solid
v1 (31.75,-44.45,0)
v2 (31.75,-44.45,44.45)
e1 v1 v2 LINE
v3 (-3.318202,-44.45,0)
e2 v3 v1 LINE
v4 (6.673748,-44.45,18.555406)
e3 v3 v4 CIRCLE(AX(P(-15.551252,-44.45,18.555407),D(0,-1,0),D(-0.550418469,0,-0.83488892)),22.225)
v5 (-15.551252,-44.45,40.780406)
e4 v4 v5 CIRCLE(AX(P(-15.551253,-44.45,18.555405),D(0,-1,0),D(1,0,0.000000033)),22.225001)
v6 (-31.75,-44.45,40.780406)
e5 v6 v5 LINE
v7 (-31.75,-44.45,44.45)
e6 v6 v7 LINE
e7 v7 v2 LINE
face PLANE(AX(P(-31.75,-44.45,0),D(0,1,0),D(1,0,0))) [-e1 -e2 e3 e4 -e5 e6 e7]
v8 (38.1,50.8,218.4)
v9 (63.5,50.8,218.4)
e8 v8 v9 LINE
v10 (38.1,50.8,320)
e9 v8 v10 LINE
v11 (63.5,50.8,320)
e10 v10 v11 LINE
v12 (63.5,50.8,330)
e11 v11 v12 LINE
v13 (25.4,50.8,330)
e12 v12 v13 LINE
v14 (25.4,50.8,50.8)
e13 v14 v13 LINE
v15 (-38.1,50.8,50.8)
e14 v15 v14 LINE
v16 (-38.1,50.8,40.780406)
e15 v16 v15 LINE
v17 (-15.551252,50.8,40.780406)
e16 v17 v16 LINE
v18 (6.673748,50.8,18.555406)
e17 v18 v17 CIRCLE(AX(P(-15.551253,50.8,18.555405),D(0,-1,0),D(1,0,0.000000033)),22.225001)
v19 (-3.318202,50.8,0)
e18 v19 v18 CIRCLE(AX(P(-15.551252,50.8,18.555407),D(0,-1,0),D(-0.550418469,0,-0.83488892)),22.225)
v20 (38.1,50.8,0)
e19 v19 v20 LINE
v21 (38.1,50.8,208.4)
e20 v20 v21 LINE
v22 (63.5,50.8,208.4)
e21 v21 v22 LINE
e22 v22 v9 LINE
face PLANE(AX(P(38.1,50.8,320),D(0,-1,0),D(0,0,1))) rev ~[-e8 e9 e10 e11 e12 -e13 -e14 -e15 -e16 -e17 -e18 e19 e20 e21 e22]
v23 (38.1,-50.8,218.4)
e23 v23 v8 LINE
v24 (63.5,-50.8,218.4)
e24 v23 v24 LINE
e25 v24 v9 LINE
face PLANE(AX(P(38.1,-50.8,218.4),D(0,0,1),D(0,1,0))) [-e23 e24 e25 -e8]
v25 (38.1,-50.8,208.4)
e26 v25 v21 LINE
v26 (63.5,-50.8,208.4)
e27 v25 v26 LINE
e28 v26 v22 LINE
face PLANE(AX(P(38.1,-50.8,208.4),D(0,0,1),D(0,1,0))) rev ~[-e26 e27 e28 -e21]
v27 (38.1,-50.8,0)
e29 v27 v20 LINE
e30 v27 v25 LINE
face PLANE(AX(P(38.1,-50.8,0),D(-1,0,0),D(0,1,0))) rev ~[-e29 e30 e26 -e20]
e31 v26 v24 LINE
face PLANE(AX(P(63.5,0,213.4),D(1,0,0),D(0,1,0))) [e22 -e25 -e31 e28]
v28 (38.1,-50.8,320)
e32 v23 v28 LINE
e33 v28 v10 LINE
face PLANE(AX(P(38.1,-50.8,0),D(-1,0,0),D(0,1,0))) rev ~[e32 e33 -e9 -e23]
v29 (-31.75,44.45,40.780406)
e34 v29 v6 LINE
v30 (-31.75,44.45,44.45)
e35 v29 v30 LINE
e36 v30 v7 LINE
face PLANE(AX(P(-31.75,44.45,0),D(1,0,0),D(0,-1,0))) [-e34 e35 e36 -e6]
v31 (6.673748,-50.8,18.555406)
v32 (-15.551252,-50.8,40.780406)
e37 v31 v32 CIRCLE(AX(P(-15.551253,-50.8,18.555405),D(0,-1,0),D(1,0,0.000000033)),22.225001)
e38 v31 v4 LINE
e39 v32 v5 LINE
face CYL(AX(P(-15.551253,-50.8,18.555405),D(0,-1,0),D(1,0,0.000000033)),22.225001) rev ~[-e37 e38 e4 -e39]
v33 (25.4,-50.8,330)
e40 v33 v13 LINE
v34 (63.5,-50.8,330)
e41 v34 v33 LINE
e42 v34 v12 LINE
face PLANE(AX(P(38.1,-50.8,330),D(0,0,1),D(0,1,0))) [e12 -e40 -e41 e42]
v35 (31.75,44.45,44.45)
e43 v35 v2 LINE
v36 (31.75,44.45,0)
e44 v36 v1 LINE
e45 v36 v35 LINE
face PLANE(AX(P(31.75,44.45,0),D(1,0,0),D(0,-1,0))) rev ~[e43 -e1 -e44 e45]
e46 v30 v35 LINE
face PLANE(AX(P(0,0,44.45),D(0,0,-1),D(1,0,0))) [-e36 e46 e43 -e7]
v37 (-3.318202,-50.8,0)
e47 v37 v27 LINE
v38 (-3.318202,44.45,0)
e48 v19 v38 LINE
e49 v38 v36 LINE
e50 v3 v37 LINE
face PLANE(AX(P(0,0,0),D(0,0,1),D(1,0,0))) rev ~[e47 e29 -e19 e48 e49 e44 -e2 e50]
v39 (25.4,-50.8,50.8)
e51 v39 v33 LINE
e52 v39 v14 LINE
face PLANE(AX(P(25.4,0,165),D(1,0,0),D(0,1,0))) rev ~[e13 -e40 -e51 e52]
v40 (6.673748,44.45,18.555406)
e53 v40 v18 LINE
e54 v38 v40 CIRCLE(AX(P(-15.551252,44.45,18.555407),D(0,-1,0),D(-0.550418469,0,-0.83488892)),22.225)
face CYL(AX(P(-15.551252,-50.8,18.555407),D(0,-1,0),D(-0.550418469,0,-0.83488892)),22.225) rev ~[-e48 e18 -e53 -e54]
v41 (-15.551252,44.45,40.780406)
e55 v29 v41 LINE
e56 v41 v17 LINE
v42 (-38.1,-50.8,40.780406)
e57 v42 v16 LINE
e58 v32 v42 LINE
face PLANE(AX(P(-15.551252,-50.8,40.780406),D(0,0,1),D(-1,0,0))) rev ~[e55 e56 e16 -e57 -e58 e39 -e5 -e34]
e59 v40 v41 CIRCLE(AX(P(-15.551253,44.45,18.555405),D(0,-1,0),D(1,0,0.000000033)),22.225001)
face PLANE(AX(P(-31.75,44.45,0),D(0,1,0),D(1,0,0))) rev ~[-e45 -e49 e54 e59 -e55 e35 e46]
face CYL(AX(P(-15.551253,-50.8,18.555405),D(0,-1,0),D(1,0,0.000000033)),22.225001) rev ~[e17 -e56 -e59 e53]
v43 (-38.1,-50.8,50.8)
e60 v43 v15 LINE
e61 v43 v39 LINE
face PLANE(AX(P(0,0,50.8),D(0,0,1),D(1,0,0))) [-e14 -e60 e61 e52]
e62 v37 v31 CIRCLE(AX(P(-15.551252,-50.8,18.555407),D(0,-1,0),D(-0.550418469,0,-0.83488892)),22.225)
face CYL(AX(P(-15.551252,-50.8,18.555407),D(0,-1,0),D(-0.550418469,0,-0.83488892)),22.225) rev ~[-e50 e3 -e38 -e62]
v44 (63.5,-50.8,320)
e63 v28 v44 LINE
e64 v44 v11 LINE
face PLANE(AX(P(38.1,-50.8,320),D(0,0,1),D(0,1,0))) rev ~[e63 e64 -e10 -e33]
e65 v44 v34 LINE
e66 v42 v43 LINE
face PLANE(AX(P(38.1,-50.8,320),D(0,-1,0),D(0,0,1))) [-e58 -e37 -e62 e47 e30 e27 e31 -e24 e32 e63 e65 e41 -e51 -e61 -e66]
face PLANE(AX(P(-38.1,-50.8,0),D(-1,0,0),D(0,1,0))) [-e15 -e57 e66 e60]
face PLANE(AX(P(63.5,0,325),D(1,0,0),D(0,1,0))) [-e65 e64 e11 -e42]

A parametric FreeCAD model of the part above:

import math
import FreeCAD as App
import Part
import Sketcher
Q = App.Units.Quantity


def add_polygon(sketch, points):
    """Adds a closed chain of lines whose ends are joined by coincident constraints."""
    first, n = sketch.GeometryCount, len(points)
    for a, b in zip(points, points[1:] + points[:1]):
        sketch.addGeometry(Part.LineSegment(App.Vector(*a, 0), App.Vector(*b, 0)), False)
    for i in range(n):
        sketch.addConstraint(Sketcher.Constraint("Coincident", first + i, 2, first + (i + 1) % n, 1))

doc = App.newDocument("Part")
params = doc.addObject("Spreadsheet::Sheet", "Params")
for row, (alias, value) in enumerate([
    ("sketch1_width", "3 in"),
    ("sketch1_height", "4 in"),
    ("pad1_length", "2 in"),
    ("sketch2_width", "4 in"),
    ("pad2_length", "0.5 in"),
    ("sketch3_width", "4 in"),
    ("pad3_length", "1 in"),
    ("sketch4_width", "2.5 in"),
    ("sketch4_height", "3.5 in"),
    ("pocket1_length", "1.75 in"),
    ("sketch5_radius", "0.875 in"),
    ("pocket2_length", "4.52 in"),
], start=1):
    params.set(f"A{row}", alias)
    params.set(f"B{row}", "=" + value)
    params.setAlias(f"B{row}", alias)

body = doc.addObject("PartDesign::Body", "Body")

sketch1 = doc.addObject("Sketcher::SketchObject", "Sketch")
body.addObject(sketch1)
sketch1.AttachmentSupport = (doc.XY_Plane, [""])
sketch1.MapMode = "FlatFace"
add_polygon(sketch1, [(-38, 51), (-38, -51), (38, -51), (38, 51)])
sketch1.addConstraint(Sketcher.Constraint("Vertical", 0))
sketch1.addConstraint(Sketcher.Constraint("Horizontal", 1))
sketch1.addConstraint(Sketcher.Constraint("Vertical", 2))
sketch1.addConstraint(Sketcher.Constraint("Horizontal", 3))
sketch1.addConstraint(Sketcher.Constraint("Symmetric", 0, 2, 2, 2, -1, 1))
sketch1.addConstraint(Sketcher.Constraint("DistanceX", 1, 1, 1, 2, Q("3 in")))
sketch1.addConstraint(Sketcher.Constraint("DistanceY", 0, 2, 0, 1, Q("4 in")))
sketch1.setExpression("Constraints[9]", "Params.sketch1_width")
sketch1.setExpression("Constraints[10]", "Params.sketch1_height")
pad1 = doc.addObject("PartDesign::Pad", "Pad")
body.addObject(pad1)
pad1.Profile = sketch1
pad1.setExpression("Length", "Params.pad1_length")

sketch2 = doc.addObject("Sketcher::SketchObject", "Sketch001")
body.addObject(sketch2)
sketch2.AttachmentSupport = (doc.YZ_Plane, [""])
sketch2.MapMode = "FlatFace"
sketch2.AttachmentOffset = App.Placement(App.Vector(0, 0, 1.5 * 25.4), App.Rotation())
add_polygon(sketch2, [(-51, 330), (-51, 0), (51, 0), (51, 330)])
sketch2.addConstraint(Sketcher.Constraint("Vertical", 0))
sketch2.addConstraint(Sketcher.Constraint("Horizontal", 1))
sketch2.addConstraint(Sketcher.Constraint("Vertical", 2))
sketch2.addConstraint(Sketcher.Constraint("Horizontal", 3))
sketch2.addConstraint(Sketcher.Constraint("Symmetric", 0, 2, 1, 2, -1, 1))
sketch2.addConstraint(Sketcher.Constraint("DistanceX", 1, 1, 1, 2, Q("4 in")))
sketch2.addConstraint(Sketcher.Constraint("DistanceY", 0, 2, 0, 1, 330.0))
sketch2.setExpression("Constraints[9]", "Params.sketch2_width")
pad2 = doc.addObject("PartDesign::Pad", "Pad001")
body.addObject(pad2)
pad2.Profile = sketch2
pad2.setExpression("Length", "Params.pad2_length")
pad2.Reversed = True

sketch3 = doc.addObject("Sketcher::SketchObject", "Sketch002")
body.addObject(sketch3)
sketch3.AttachmentSupport = (doc.YZ_Plane, [""])
sketch3.MapMode = "FlatFace"
sketch3.AttachmentOffset = App.Placement(App.Vector(0, 0, 1.5 * 25.4), App.Rotation())
add_polygon(sketch3, [(-51, 330), (-51, 320), (51, 320), (51, 330)])
add_polygon(sketch3, [(-51, 218), (-51, 208), (51, 208), (51, 218)])
sketch3.addConstraint(Sketcher.Constraint("Vertical", 0))
sketch3.addConstraint(Sketcher.Constraint("Horizontal", 1))
sketch3.addConstraint(Sketcher.Constraint("Vertical", 2))
sketch3.addConstraint(Sketcher.Constraint("Horizontal", 3))
sketch3.addConstraint(Sketcher.Constraint("Vertical", 4))
sketch3.addConstraint(Sketcher.Constraint("Horizontal", 5))
sketch3.addConstraint(Sketcher.Constraint("Vertical", 6))
sketch3.addConstraint(Sketcher.Constraint("Horizontal", 7))
sketch3.addConstraint(Sketcher.Constraint("Vertical", 3, 2, 4, 2))
sketch3.addConstraint(Sketcher.Constraint("Vertical", 2, 2, 5, 2))
sketch3.addConstraint(Sketcher.Constraint("Equal", 2, 4))
sketch3.addConstraint(Sketcher.Constraint("DistanceX", 1, 1, 1, 2, Q("4 in")))
sketch3.addConstraint(Sketcher.Constraint("DistanceX", 0, 2, -1, 1, Q("2 in")))
sketch3.addConstraint(Sketcher.Constraint("DistanceY", 6, 2, 1, 2, Q("4 in")))
sketch3.addConstraint(Sketcher.Constraint("DistanceY", 0, 2, 0, 1, 10.0))
sketch3.addConstraint(Sketcher.Constraint("DistanceY", -1, 1, 0, 2, 320.0))
sketch3.setExpression("Constraints[19]", "Params.sketch3_width")
pad3 = doc.addObject("PartDesign::Pad", "Pad002")
body.addObject(pad3)
pad3.Profile = sketch3
pad3.setExpression("Length", "Params.pad3_length")

sketch4 = doc.addObject("Sketcher::SketchObject", "Sketch003")
body.addObject(sketch4)
sketch4.AttachmentSupport = (doc.XY_Plane, [""])
sketch4.MapMode = "FlatFace"
add_polygon(sketch4, [(-32, -44), (-32, 44), (32, 44), (32, -44)])
sketch4.addConstraint(Sketcher.Constraint("Vertical", 0))
sketch4.addConstraint(Sketcher.Constraint("Horizontal", 1))
sketch4.addConstraint(Sketcher.Constraint("Vertical", 2))
sketch4.addConstraint(Sketcher.Constraint("Horizontal", 3))
sketch4.addConstraint(Sketcher.Constraint("Symmetric", 0, 2, 2, 2, -1, 1))
sketch4.addConstraint(Sketcher.Constraint("DistanceX", 1, 1, 1, 2, Q("2.5 in")))
sketch4.addConstraint(Sketcher.Constraint("DistanceY", 0, 1, 0, 2, Q("3.5 in")))
sketch4.setExpression("Constraints[9]", "Params.sketch4_width")
sketch4.setExpression("Constraints[10]", "Params.sketch4_height")
pocket1 = doc.addObject("PartDesign::Pocket", "Pocket")
body.addObject(pocket1)
pocket1.Profile = sketch4
pocket1.setExpression("Length", "Params.pocket1_length")
pocket1.Reversed = True

sketch5 = doc.addObject("Sketcher::SketchObject", "Sketch004")
body.addObject(sketch5)
sketch5.AttachmentSupport = (doc.XZ_Plane, [""])
sketch5.MapMode = "FlatFace"
sketch5.AttachmentOffset = App.Placement(App.Vector(0, 0, 2 * 25.4), App.Rotation())
sketch5.addGeometry(Part.ArcOfCircle(Part.Circle(App.Vector(-16, 19, 0), App.Vector(0, 0, 1), 22), math.radians(-123), math.radians(0)), False)
sketch5.addGeometry(Part.ArcOfCircle(Part.Circle(App.Vector(-16, 19, 0), App.Vector(0, 0, 1), 22), math.radians(0), math.radians(90)), False)
sketch5.addGeometry(Part.LineSegment(App.Vector(-16, 41, 0), App.Vector(-38, 41, 0)), False)
sketch5.addGeometry(Part.LineSegment(App.Vector(-38, 41, 0), App.Vector(-38, 0, 0)), False)
sketch5.addGeometry(Part.LineSegment(App.Vector(-38, 0, 0), App.Vector(-28, 0, 0)), False)
sketch5.addConstraint(Sketcher.Constraint("Tangent", 0, 2, 1, 1))
sketch5.addConstraint(Sketcher.Constraint("Tangent", 1, 2, 2, 1))
sketch5.addConstraint(Sketcher.Constraint("Coincident", 2, 2, 3, 1))
sketch5.addConstraint(Sketcher.Constraint("Coincident", 3, 2, 4, 1))
sketch5.addConstraint(Sketcher.Constraint("Coincident", 4, 2, 0, 1))
sketch5.addConstraint(Sketcher.Constraint("Horizontal", 2))
sketch5.addConstraint(Sketcher.Constraint("Vertical", 3))
sketch5.addConstraint(Sketcher.Constraint("Horizontal", 4))
sketch5.addConstraint(Sketcher.Constraint("Equal", 0, 1))
sketch5.addConstraint(Sketcher.Constraint("PointOnObject", 3, 2, -1))
sketch5.addConstraint(Sketcher.Constraint("Horizontal", 1, 3, 0, 2))
sketch5.addConstraint(Sketcher.Constraint("Radius", 0, Q("0.875 in")))
sketch5.addConstraint(Sketcher.Constraint("DistanceX", 2, 2, -1, 1, Q("1.5 in")))
sketch5.addConstraint(Sketcher.Constraint("DistanceX", 2, 2, 2, 1, 22.548748))
sketch5.addConstraint(Sketcher.Constraint("DistanceX", 4, 1, 4, 2, 10.315697))
sketch5.setExpression("Constraints[11]", "Params.sketch5_radius")
pocket2 = doc.addObject("PartDesign::Pocket", "Pocket001")
body.addObject(pocket2)
pocket2.Profile = sketch5
pocket2.setExpression("Length", "Params.pocket2_length")

doc.recompute()
